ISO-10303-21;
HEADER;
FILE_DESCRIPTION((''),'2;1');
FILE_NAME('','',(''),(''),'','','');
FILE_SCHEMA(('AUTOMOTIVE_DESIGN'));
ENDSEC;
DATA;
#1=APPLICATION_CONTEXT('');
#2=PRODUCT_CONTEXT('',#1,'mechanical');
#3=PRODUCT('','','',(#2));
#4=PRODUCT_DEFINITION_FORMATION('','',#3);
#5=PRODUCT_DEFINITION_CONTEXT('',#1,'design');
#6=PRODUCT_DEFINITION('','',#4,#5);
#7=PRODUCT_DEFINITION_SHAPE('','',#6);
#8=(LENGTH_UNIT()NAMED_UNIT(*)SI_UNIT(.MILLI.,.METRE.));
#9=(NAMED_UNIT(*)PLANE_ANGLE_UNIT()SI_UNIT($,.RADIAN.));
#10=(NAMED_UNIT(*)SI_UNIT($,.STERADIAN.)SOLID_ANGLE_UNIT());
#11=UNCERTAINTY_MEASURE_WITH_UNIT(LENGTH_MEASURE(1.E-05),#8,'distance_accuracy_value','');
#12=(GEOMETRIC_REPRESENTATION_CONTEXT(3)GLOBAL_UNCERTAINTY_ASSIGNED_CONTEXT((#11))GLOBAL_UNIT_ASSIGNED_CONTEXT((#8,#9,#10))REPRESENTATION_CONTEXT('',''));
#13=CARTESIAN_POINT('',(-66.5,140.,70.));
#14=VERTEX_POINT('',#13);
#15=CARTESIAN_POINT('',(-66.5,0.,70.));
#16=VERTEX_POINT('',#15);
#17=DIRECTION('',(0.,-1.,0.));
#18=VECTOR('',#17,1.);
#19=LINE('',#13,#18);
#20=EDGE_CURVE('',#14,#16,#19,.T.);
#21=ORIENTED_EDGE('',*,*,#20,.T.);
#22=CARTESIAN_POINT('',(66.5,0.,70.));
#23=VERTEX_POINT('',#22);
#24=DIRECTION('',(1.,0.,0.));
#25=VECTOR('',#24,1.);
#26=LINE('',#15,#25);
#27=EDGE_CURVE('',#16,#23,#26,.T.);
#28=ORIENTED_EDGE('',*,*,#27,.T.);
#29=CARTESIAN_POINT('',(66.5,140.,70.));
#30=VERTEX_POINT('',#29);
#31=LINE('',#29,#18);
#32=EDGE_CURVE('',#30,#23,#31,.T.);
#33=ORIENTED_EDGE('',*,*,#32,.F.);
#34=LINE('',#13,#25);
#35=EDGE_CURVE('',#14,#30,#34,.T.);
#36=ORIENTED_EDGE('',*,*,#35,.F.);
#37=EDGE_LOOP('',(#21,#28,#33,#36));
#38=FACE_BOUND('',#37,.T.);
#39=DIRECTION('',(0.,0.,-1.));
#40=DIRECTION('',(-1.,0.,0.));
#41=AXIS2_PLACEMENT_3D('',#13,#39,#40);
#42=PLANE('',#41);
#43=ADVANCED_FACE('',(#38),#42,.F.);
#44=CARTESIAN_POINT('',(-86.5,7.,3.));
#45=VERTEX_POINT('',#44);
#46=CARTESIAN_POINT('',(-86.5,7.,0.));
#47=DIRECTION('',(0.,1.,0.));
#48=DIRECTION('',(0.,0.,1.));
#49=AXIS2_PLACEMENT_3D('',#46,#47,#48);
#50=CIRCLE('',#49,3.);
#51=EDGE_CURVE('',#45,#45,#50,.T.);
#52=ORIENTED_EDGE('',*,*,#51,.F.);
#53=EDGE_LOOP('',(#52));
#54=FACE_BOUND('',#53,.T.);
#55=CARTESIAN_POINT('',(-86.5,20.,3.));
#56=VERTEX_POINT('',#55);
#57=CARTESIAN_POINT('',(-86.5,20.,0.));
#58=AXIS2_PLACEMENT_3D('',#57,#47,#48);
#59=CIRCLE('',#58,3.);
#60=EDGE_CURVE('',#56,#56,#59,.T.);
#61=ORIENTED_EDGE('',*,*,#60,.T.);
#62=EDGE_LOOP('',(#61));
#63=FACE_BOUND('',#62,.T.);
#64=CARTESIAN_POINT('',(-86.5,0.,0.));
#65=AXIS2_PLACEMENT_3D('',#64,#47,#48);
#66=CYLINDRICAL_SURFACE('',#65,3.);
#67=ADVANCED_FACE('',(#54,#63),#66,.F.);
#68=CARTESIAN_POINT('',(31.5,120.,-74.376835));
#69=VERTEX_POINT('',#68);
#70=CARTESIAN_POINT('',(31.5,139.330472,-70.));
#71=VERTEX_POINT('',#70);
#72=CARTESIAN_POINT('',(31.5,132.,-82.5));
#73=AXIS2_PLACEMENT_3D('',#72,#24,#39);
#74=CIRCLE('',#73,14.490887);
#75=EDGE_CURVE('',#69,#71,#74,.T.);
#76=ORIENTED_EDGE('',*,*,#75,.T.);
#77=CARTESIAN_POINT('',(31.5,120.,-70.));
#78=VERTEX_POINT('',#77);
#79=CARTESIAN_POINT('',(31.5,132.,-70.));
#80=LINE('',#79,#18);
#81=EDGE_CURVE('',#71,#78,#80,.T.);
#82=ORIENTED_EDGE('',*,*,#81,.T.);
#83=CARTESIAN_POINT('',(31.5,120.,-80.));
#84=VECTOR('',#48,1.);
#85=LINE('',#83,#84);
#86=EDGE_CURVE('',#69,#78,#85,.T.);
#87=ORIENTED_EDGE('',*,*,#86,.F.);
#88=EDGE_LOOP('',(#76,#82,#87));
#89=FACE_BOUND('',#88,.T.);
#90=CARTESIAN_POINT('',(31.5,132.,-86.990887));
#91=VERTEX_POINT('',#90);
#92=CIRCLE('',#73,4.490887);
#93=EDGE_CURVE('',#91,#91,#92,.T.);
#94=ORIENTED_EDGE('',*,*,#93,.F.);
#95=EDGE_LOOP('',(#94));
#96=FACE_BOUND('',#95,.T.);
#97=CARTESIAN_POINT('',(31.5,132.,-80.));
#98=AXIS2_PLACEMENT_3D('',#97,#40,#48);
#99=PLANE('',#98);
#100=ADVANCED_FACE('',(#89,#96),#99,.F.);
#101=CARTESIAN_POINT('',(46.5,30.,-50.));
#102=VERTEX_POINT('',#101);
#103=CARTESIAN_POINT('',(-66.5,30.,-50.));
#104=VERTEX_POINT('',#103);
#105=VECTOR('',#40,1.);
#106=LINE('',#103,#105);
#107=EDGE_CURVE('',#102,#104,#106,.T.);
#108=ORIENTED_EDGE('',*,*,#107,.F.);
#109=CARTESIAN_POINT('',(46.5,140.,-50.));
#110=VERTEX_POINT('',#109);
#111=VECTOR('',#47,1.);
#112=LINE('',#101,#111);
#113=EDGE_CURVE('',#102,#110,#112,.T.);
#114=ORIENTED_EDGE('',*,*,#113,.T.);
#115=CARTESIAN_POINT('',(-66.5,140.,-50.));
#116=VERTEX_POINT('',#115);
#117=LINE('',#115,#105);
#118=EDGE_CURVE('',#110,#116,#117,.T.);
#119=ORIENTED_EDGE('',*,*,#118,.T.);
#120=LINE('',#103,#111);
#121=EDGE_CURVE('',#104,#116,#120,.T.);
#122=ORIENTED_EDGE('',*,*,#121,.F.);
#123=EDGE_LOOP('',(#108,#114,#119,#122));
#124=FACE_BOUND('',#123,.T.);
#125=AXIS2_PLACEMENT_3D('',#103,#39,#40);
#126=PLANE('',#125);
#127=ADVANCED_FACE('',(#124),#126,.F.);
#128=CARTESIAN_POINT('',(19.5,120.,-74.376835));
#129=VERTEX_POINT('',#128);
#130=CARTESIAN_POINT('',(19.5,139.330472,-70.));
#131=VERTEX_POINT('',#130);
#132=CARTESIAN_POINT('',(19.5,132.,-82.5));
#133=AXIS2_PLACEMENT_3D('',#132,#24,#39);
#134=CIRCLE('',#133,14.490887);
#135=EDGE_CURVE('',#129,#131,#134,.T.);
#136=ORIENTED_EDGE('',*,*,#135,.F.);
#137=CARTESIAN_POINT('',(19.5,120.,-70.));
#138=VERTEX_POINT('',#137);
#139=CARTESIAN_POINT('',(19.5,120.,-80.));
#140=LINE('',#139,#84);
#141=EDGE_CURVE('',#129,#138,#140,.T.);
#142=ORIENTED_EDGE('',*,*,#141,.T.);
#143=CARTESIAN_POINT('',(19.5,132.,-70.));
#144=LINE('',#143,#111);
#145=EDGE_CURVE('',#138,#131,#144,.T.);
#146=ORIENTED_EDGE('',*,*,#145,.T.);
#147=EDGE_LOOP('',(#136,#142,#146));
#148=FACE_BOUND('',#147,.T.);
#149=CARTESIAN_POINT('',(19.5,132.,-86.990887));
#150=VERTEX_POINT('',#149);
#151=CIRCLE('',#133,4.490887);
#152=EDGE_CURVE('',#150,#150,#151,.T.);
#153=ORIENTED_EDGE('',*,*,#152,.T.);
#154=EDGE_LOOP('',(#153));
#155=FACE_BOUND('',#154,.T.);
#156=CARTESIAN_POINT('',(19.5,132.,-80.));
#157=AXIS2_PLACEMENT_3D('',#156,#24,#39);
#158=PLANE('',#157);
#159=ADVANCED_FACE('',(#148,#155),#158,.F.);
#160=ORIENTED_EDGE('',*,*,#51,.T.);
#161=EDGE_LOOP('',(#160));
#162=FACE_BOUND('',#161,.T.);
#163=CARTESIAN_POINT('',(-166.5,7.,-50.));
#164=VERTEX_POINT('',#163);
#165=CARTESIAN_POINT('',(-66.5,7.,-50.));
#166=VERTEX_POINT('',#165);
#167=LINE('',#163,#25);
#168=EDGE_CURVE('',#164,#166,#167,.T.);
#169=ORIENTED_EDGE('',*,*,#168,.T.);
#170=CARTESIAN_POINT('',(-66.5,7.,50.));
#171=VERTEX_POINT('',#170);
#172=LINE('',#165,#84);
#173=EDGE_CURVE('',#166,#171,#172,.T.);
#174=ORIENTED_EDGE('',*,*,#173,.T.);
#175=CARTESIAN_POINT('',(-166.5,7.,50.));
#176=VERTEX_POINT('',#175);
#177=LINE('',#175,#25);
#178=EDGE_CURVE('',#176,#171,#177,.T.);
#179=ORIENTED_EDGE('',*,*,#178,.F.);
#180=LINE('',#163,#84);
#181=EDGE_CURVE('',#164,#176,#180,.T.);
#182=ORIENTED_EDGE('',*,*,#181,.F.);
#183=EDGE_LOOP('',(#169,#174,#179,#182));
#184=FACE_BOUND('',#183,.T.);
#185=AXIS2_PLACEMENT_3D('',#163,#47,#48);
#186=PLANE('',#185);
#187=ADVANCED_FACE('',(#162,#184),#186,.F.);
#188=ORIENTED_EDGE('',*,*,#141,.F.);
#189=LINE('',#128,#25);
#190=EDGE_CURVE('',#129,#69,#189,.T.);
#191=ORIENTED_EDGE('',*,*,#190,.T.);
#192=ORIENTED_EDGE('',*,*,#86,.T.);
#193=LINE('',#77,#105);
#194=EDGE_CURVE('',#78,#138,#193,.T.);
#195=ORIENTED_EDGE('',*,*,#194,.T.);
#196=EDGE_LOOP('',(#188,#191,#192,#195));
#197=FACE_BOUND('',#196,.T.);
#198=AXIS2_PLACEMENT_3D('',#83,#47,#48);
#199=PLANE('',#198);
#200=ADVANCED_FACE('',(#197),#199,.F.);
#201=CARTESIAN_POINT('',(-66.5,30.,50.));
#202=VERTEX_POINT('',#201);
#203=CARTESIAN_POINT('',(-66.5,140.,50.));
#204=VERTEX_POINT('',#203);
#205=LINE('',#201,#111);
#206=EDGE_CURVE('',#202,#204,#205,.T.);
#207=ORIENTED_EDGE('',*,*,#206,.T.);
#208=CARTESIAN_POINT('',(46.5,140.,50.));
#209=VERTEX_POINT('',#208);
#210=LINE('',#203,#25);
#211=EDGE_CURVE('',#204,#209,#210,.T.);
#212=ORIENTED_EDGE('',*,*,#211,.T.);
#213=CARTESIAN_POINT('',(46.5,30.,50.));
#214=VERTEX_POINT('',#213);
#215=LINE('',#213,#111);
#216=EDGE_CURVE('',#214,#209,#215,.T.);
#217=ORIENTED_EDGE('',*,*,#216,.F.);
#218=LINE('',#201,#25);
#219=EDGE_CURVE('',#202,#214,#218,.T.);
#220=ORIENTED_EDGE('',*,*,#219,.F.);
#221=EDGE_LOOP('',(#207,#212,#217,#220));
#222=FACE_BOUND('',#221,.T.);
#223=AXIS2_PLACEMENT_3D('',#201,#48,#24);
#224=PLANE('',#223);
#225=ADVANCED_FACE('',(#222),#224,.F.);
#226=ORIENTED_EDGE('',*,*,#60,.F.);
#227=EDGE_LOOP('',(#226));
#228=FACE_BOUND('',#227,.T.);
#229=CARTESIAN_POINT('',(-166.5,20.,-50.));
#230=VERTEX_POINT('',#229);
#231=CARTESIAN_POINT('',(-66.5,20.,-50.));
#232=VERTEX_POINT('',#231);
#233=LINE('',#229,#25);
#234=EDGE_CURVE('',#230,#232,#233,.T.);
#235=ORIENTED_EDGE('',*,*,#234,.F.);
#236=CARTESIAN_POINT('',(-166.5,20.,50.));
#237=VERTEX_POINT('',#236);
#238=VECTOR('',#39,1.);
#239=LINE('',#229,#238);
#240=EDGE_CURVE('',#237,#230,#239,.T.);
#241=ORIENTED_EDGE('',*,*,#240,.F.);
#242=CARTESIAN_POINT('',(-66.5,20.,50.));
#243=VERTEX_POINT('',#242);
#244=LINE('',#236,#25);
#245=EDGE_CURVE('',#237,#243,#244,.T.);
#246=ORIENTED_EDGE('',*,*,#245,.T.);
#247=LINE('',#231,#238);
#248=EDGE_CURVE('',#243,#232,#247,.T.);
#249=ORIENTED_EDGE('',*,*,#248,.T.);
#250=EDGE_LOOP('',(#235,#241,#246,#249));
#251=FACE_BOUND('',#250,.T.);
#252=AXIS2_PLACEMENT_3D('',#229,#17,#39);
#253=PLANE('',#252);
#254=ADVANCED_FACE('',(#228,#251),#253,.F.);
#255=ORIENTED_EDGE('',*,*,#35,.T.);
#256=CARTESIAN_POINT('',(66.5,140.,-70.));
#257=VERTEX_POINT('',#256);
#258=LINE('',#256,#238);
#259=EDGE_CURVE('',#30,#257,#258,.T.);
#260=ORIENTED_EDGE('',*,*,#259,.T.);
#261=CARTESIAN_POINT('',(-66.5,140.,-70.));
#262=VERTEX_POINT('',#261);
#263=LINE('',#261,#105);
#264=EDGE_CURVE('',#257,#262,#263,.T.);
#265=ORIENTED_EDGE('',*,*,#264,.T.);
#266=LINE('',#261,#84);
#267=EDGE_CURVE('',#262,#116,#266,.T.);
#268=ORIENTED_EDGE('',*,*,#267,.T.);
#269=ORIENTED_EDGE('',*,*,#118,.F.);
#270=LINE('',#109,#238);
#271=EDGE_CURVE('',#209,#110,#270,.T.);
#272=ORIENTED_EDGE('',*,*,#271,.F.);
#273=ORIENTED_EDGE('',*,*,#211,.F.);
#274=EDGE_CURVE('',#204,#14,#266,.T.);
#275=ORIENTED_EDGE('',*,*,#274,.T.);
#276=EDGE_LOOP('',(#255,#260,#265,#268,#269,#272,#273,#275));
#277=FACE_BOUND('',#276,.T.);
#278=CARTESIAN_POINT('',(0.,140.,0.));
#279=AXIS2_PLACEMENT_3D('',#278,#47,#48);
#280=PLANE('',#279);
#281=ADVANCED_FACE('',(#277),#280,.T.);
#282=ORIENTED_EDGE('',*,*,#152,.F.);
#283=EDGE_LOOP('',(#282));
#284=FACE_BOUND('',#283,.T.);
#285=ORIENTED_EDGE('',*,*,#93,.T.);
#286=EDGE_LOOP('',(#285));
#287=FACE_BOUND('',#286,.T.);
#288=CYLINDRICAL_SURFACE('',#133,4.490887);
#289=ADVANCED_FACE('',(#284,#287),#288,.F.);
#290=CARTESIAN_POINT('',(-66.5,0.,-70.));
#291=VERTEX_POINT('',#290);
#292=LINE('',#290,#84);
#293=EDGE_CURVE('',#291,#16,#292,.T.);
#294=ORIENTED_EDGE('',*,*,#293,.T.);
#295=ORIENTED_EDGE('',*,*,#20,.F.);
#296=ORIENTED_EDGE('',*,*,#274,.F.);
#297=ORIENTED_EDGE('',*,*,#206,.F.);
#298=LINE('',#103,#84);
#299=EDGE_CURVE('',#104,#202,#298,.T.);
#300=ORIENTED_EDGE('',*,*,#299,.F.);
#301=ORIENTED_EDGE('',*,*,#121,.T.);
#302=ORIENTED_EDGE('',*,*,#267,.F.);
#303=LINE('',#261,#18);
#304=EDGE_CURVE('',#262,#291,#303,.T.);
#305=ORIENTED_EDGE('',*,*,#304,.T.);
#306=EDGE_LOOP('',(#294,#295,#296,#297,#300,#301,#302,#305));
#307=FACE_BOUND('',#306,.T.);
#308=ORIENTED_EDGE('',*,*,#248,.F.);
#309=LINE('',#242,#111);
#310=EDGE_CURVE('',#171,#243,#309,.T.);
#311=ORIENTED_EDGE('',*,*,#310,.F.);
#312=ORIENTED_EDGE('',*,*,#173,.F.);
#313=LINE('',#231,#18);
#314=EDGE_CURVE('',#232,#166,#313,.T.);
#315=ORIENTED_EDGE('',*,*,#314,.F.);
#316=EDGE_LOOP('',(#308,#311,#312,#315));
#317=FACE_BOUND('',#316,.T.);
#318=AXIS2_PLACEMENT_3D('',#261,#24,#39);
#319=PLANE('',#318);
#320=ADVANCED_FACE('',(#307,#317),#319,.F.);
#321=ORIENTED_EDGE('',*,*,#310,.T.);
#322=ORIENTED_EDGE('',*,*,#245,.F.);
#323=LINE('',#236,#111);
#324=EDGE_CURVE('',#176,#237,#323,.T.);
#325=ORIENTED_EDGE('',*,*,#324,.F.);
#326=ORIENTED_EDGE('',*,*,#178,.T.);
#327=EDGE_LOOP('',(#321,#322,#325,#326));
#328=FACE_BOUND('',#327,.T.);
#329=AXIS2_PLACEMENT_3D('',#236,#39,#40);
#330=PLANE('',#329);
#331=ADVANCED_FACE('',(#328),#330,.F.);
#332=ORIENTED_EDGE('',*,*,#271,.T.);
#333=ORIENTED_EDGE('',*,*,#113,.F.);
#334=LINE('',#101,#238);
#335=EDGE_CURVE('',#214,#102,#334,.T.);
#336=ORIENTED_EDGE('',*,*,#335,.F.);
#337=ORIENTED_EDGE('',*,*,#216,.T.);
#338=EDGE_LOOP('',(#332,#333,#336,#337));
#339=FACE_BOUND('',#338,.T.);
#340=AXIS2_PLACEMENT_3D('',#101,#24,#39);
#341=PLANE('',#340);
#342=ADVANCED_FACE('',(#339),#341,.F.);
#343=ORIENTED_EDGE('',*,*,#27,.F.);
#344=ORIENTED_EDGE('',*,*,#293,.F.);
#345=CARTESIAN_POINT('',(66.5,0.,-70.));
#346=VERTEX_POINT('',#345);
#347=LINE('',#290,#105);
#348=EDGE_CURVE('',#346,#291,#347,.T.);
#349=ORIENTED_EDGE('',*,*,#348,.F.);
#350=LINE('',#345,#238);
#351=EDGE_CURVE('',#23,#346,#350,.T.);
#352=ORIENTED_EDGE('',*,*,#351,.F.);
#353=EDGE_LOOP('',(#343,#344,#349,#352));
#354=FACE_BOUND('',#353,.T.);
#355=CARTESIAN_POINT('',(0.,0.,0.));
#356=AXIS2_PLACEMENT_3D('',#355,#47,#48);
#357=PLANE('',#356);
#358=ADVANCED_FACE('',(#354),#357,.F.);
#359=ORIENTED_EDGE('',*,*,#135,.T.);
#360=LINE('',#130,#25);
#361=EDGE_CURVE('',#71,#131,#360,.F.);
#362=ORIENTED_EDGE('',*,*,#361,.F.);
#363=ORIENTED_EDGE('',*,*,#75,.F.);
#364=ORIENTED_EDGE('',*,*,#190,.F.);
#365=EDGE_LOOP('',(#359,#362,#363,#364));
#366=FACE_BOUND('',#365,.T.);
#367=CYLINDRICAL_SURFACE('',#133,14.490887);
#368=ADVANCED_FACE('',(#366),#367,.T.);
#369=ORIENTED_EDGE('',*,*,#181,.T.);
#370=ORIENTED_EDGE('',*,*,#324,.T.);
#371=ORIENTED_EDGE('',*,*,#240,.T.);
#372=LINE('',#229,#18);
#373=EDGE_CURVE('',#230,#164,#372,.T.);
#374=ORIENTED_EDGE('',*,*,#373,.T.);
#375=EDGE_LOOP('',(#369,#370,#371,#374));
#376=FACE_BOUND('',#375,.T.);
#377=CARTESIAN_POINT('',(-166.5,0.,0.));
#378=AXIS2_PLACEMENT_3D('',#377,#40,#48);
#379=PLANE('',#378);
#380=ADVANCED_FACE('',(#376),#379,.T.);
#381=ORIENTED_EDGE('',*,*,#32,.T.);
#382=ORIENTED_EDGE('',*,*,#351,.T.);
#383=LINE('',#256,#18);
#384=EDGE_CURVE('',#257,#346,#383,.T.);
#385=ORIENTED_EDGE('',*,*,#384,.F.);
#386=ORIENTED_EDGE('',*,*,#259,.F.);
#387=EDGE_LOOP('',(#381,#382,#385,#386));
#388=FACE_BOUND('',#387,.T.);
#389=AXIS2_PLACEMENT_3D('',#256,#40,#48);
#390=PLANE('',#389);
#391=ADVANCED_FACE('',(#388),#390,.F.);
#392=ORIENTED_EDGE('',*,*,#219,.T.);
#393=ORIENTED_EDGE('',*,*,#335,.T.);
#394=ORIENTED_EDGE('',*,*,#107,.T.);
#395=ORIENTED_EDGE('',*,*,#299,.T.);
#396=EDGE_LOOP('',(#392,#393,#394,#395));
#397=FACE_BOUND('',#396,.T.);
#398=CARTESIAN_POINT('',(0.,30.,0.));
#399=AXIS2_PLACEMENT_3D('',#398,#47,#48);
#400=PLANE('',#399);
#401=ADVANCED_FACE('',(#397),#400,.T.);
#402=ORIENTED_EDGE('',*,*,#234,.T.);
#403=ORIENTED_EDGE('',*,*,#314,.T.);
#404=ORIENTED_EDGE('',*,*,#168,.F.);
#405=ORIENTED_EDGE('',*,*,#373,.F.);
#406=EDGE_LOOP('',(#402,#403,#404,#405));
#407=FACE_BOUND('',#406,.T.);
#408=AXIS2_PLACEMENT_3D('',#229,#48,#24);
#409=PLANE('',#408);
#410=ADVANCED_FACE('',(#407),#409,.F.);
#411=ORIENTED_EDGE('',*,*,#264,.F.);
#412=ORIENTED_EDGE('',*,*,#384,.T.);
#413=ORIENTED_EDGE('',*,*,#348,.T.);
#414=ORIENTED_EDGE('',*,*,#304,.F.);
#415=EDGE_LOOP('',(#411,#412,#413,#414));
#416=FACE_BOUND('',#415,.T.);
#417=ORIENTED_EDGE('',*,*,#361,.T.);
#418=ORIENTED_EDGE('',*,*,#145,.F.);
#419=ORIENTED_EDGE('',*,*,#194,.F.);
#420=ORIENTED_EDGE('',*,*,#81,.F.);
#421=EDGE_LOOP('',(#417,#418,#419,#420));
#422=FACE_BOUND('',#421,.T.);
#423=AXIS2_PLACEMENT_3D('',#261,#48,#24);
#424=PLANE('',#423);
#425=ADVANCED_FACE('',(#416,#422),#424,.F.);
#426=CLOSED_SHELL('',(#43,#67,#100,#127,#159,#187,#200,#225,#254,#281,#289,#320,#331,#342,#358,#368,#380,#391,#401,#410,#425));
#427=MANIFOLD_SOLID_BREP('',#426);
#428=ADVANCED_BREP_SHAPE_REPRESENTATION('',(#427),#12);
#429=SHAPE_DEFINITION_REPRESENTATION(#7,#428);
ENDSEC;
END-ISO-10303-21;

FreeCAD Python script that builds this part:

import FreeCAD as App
import Part
import Sketcher
Q = App.Units.Quantity

doc = App.newDocument("Part")
body = doc.addObject("PartDesign::Body", "Body")

sketch1 = body.newObject("Sketcher::SketchObject", "Sketch")
sketch1.AttachmentSupport = (doc.getObject("XZ_Plane"), [""])
sketch1.MapMode = "FlatFace"
sketch1.addGeometry([
    Part.LineSegment(App.Vector(-66, -70, 0), App.Vector(-66, 70, 0)),
    Part.LineSegment(App.Vector(-66, 70, 0), App.Vector(66, 70, 0)),
    Part.LineSegment(App.Vector(66, 70, 0), App.Vector(66, -70, 0)),
    Part.LineSegment(App.Vector(66, -70, 0), App.Vector(-66, -70, 0)),
], False)
sketch1.addConstraint([
    Sketcher.Constraint("Coincident", 0, 2, 1, 1),
    Sketcher.Constraint("Coincident", 1, 2, 2, 1),
    Sketcher.Constraint("Coincident", 2, 2, 3, 1),
    Sketcher.Constraint("Coincident", 3, 2, 0, 1),
    Sketcher.Constraint("Vertical", 0),
    Sketcher.Constraint("Horizontal", 1),
    Sketcher.Constraint("Vertical", 2),
    Sketcher.Constraint("Horizontal", 3),
    Sketcher.Constraint("Symmetric", 0, 2, 2, 2, -1, 1),
    Sketcher.Constraint("DistanceX", 1, 1, 1, 2, Q("133 mm")),
    Sketcher.Constraint("DistanceY", 0, 1, 0, 2, Q("140 mm")),
])
pad1 = body.newObject("PartDesign::Pad", "Pad")
pad1.Profile = sketch1
pad1.Length = 140
pad1.Reversed = True

sketch2 = body.newObject("Sketcher::SketchObject", "Sketch001")
sketch2.AttachmentSupport = (doc.getObject("XZ_Plane"), [""])
sketch2.MapMode = "FlatFace"
sketch2.AttachmentOffset = App.Placement(App.Vector(0, 0, -140), App.Rotation())
sketch2.addGeometry([
    Part.LineSegment(App.Vector(-66, -50, 0), App.Vector(-66, 50, 0)),
    Part.LineSegment(App.Vector(-66, 50, 0), App.Vector(46, 50, 0)),
    Part.LineSegment(App.Vector(46, 50, 0), App.Vector(46, -50, 0)),
    Part.LineSegment(App.Vector(46, -50, 0), App.Vector(-66, -50, 0)),
], False)
sketch2.addConstraint([
    Sketcher.Constraint("Coincident", 0, 2, 1, 1),
    Sketcher.Constraint("Coincident", 1, 2, 2, 1),
    Sketcher.Constraint("Coincident", 2, 2, 3, 1),
    Sketcher.Constraint("Coincident", 3, 2, 0, 1),
    Sketcher.Constraint("Vertical", 0),
    Sketcher.Constraint("Horizontal", 1),
    Sketcher.Constraint("Vertical", 2),
    Sketcher.Constraint("Horizontal", 3),
    Sketcher.Constraint("DistanceX", 1, 1, 1, 2, Q("113 mm")),
    Sketcher.Constraint("DistanceY", 0, 1, 0, 2, Q("100 mm")),
    Sketcher.Constraint("DistanceY", -1, 1, 0, 2, Q("50 mm")),
    Sketcher.Constraint("DistanceX", 0, 2, -1, 1, Q("66.5 mm")),
])
pocket1 = body.newObject("PartDesign::Pocket", "Pocket")
pocket1.Profile = sketch2
pocket1.Length = 110
pocket1.Reversed = True

sketch3 = body.newObject("Sketcher::SketchObject", "Sketch002")
sketch3.AttachmentSupport = (doc.getObject("YZ_Plane"), [""])
sketch3.MapMode = "FlatFace"
sketch3.AttachmentOffset = App.Placement(App.Vector(0, 0, -66.5), App.Rotation())
sketch3.addGeometry([
    Part.LineSegment(App.Vector(20, -50, 0), App.Vector(7, -50, 0)),
    Part.LineSegment(App.Vector(7, -50, 0), App.Vector(7, 50, 0)),
    Part.LineSegment(App.Vector(7, 50, 0), App.Vector(20, 50, 0)),
    Part.LineSegment(App.Vector(20, 50, 0), App.Vector(20, -50, 0)),
], False)
sketch3.addConstraint([
    Sketcher.Constraint("Coincident", 0, 2, 1, 1),
    Sketcher.Constraint("Coincident", 1, 2, 2, 1),
    Sketcher.Constraint("Coincident", 2, 2, 3, 1),
    Sketcher.Constraint("Coincident", 3, 2, 0, 1),
    Sketcher.Constraint("Horizontal", 0),
    Sketcher.Constraint("Vertical", 1),
    Sketcher.Constraint("Horizontal", 2),
    Sketcher.Constraint("Vertical", 3),
    Sketcher.Constraint("DistanceX", 0, 2, 0, 1, Q("13 mm")),
    Sketcher.Constraint("DistanceY", 1, 1, 1, 2, Q("100 mm")),
    Sketcher.Constraint("DistanceX", -1, 1, 0, 2, Q("7 mm")),
    Sketcher.Constraint("DistanceY", 0, 2, -1, 1, Q("50 mm")),
])
pad2 = body.newObject("PartDesign::Pad", "Pad001")
pad2.Profile = sketch3
pad2.Length = 100
pad2.Reversed = True

sketch4 = body.newObject("Sketcher::SketchObject", "Sketch003")
sketch4.AttachmentSupport = (doc.getObject("XZ_Plane"), [""])
sketch4.MapMode = "FlatFace"
sketch4.AttachmentOffset = App.Placement(App.Vector(0, 0, -20), App.Rotation())
sketch4.addGeometry(Part.Circle(App.Vector(-86.5, 0, 0), App.Vector(0, 0, 1), 3), False)
sketch4.addConstraint([
    Sketcher.Constraint("PointOnObject", 0, 3, -1),
    Sketcher.Constraint("Diameter", 0, Q("6 mm")),
    Sketcher.Constraint("DistanceX", 0, 3, -1, 1, Q("86.5 mm")),
])
pocket2 = body.newObject("PartDesign::Pocket", "Pocket001")
pocket2.Profile = sketch4
pocket2.Type = "ThroughAll"
pocket2.Reversed = True

sketch5 = body.newObject("Sketcher::SketchObject", "Sketch004")
sketch5.AttachmentSupport = (doc.getObject("XY_Plane"), [""])
sketch5.MapMode = "FlatFace"
sketch5.AttachmentOffset = App.Placement(App.Vector(0, 0, -70), App.Rotation())
sketch5.addGeometry([
    Part.LineSegment(App.Vector(32, 132, 0), App.Vector(32, 120, 0)),
    Part.LineSegment(App.Vector(32, 120, 0), App.Vector(20, 120, 0)),
    Part.LineSegment(App.Vector(20, 120, 0), App.Vector(20, 132, 0)),
    Part.LineSegment(App.Vector(20, 132, 0), App.Vector(32, 132, 0)),
], False)
sketch5.addConstraint([
    Sketcher.Constraint("Coincident", 0, 2, 1, 1),
    Sketcher.Constraint("Coincident", 1, 2, 2, 1),
    Sketcher.Constraint("Coincident", 2, 2, 3, 1),
    Sketcher.Constraint("Coincident", 3, 2, 0, 1),
    Sketcher.Constraint("Vertical", 0),
    Sketcher.Constraint("Horizontal", 1),
    Sketcher.Constraint("Vertical", 2),
    Sketcher.Constraint("Horizontal", 3),
    Sketcher.Constraint("Equal", 3, 0),
    Sketcher.Constraint("DistanceX", 1, 2, 1, 1, Q("12 mm")),
    Sketcher.Constraint("DistanceY", -1, 1, 0, 2, Q("120 mm")),
    Sketcher.Constraint("DistanceX", -1, 1, 0, 2, Q("31.5 mm")),
])
pad3 = body.newObject("PartDesign::Pad", "Pad002")
pad3.Profile = sketch5
pad3.Length = 10
pad3.Reversed = True

sketch6 = body.newObject("Sketcher::SketchObject", "Sketch005")
sketch6.AttachmentSupport = (doc.getObject("YZ_Plane"), [""])
sketch6.MapMode = "FlatFace"
sketch6.AttachmentOffset = App.Placement(App.Vector(0, 0, 31.5), App.Rotation())
sketch6.addGeometry([
    Part.Circle(App.Vector(132, -82.5, 0), App.Vector(0, 0, 1), 14.5),
    Part.Circle(App.Vector(132, -82.5, 0), App.Vector(0, 0, 1), 4.5),
], False)
sketch6.addConstraint([
    Sketcher.Constraint("Coincident", 1, 3, 0, 3),
    Sketcher.Constraint("DistanceX", -1, 1, 0, 3, Q("132 mm")),
    Sketcher.Constraint("DistanceY", 0, 3, -1, 1, Q("82.5 mm")),
    Sketcher.Constraint("Diameter", 0, Q("28.981775 mm")),
    Sketcher.Constraint("Diameter", 1, Q("8.981775 mm")),
])
pad4 = body.newObject("PartDesign::Pad", "Pad003")
pad4.Profile = sketch6
pad4.Length = 12
pad4.Reversed = True

sketch7 = body.newObject("Sketcher::SketchObject", "Sketch006")
sketch7.AttachmentSupport = (doc.getObject("YZ_Plane"), [""])
sketch7.MapMode = "FlatFace"
sketch7.AttachmentOffset = App.Placement(App.Vector(0, 0, 31.5), App.Rotation())
sketch7.addGeometry(Part.Circle(App.Vector(132, -82.5, 0), App.Vector(0, 0, 1), 4.5), False)
sketch7.addConstraint([
    Sketcher.Constraint("DistanceX", -1, 1, 0, 3, Q("132 mm")),
    Sketcher.Constraint("DistanceY", 0, 3, -1, 1, Q("82.5 mm")),
    Sketcher.Constraint("Diameter", 0, Q("8.981775 mm")),
])
pocket3 = body.newObject("PartDesign::Pocket", "Pocket002")
pocket3.Profile = sketch7
pocket3.Type = "ThroughAll"

doc.recompute()
